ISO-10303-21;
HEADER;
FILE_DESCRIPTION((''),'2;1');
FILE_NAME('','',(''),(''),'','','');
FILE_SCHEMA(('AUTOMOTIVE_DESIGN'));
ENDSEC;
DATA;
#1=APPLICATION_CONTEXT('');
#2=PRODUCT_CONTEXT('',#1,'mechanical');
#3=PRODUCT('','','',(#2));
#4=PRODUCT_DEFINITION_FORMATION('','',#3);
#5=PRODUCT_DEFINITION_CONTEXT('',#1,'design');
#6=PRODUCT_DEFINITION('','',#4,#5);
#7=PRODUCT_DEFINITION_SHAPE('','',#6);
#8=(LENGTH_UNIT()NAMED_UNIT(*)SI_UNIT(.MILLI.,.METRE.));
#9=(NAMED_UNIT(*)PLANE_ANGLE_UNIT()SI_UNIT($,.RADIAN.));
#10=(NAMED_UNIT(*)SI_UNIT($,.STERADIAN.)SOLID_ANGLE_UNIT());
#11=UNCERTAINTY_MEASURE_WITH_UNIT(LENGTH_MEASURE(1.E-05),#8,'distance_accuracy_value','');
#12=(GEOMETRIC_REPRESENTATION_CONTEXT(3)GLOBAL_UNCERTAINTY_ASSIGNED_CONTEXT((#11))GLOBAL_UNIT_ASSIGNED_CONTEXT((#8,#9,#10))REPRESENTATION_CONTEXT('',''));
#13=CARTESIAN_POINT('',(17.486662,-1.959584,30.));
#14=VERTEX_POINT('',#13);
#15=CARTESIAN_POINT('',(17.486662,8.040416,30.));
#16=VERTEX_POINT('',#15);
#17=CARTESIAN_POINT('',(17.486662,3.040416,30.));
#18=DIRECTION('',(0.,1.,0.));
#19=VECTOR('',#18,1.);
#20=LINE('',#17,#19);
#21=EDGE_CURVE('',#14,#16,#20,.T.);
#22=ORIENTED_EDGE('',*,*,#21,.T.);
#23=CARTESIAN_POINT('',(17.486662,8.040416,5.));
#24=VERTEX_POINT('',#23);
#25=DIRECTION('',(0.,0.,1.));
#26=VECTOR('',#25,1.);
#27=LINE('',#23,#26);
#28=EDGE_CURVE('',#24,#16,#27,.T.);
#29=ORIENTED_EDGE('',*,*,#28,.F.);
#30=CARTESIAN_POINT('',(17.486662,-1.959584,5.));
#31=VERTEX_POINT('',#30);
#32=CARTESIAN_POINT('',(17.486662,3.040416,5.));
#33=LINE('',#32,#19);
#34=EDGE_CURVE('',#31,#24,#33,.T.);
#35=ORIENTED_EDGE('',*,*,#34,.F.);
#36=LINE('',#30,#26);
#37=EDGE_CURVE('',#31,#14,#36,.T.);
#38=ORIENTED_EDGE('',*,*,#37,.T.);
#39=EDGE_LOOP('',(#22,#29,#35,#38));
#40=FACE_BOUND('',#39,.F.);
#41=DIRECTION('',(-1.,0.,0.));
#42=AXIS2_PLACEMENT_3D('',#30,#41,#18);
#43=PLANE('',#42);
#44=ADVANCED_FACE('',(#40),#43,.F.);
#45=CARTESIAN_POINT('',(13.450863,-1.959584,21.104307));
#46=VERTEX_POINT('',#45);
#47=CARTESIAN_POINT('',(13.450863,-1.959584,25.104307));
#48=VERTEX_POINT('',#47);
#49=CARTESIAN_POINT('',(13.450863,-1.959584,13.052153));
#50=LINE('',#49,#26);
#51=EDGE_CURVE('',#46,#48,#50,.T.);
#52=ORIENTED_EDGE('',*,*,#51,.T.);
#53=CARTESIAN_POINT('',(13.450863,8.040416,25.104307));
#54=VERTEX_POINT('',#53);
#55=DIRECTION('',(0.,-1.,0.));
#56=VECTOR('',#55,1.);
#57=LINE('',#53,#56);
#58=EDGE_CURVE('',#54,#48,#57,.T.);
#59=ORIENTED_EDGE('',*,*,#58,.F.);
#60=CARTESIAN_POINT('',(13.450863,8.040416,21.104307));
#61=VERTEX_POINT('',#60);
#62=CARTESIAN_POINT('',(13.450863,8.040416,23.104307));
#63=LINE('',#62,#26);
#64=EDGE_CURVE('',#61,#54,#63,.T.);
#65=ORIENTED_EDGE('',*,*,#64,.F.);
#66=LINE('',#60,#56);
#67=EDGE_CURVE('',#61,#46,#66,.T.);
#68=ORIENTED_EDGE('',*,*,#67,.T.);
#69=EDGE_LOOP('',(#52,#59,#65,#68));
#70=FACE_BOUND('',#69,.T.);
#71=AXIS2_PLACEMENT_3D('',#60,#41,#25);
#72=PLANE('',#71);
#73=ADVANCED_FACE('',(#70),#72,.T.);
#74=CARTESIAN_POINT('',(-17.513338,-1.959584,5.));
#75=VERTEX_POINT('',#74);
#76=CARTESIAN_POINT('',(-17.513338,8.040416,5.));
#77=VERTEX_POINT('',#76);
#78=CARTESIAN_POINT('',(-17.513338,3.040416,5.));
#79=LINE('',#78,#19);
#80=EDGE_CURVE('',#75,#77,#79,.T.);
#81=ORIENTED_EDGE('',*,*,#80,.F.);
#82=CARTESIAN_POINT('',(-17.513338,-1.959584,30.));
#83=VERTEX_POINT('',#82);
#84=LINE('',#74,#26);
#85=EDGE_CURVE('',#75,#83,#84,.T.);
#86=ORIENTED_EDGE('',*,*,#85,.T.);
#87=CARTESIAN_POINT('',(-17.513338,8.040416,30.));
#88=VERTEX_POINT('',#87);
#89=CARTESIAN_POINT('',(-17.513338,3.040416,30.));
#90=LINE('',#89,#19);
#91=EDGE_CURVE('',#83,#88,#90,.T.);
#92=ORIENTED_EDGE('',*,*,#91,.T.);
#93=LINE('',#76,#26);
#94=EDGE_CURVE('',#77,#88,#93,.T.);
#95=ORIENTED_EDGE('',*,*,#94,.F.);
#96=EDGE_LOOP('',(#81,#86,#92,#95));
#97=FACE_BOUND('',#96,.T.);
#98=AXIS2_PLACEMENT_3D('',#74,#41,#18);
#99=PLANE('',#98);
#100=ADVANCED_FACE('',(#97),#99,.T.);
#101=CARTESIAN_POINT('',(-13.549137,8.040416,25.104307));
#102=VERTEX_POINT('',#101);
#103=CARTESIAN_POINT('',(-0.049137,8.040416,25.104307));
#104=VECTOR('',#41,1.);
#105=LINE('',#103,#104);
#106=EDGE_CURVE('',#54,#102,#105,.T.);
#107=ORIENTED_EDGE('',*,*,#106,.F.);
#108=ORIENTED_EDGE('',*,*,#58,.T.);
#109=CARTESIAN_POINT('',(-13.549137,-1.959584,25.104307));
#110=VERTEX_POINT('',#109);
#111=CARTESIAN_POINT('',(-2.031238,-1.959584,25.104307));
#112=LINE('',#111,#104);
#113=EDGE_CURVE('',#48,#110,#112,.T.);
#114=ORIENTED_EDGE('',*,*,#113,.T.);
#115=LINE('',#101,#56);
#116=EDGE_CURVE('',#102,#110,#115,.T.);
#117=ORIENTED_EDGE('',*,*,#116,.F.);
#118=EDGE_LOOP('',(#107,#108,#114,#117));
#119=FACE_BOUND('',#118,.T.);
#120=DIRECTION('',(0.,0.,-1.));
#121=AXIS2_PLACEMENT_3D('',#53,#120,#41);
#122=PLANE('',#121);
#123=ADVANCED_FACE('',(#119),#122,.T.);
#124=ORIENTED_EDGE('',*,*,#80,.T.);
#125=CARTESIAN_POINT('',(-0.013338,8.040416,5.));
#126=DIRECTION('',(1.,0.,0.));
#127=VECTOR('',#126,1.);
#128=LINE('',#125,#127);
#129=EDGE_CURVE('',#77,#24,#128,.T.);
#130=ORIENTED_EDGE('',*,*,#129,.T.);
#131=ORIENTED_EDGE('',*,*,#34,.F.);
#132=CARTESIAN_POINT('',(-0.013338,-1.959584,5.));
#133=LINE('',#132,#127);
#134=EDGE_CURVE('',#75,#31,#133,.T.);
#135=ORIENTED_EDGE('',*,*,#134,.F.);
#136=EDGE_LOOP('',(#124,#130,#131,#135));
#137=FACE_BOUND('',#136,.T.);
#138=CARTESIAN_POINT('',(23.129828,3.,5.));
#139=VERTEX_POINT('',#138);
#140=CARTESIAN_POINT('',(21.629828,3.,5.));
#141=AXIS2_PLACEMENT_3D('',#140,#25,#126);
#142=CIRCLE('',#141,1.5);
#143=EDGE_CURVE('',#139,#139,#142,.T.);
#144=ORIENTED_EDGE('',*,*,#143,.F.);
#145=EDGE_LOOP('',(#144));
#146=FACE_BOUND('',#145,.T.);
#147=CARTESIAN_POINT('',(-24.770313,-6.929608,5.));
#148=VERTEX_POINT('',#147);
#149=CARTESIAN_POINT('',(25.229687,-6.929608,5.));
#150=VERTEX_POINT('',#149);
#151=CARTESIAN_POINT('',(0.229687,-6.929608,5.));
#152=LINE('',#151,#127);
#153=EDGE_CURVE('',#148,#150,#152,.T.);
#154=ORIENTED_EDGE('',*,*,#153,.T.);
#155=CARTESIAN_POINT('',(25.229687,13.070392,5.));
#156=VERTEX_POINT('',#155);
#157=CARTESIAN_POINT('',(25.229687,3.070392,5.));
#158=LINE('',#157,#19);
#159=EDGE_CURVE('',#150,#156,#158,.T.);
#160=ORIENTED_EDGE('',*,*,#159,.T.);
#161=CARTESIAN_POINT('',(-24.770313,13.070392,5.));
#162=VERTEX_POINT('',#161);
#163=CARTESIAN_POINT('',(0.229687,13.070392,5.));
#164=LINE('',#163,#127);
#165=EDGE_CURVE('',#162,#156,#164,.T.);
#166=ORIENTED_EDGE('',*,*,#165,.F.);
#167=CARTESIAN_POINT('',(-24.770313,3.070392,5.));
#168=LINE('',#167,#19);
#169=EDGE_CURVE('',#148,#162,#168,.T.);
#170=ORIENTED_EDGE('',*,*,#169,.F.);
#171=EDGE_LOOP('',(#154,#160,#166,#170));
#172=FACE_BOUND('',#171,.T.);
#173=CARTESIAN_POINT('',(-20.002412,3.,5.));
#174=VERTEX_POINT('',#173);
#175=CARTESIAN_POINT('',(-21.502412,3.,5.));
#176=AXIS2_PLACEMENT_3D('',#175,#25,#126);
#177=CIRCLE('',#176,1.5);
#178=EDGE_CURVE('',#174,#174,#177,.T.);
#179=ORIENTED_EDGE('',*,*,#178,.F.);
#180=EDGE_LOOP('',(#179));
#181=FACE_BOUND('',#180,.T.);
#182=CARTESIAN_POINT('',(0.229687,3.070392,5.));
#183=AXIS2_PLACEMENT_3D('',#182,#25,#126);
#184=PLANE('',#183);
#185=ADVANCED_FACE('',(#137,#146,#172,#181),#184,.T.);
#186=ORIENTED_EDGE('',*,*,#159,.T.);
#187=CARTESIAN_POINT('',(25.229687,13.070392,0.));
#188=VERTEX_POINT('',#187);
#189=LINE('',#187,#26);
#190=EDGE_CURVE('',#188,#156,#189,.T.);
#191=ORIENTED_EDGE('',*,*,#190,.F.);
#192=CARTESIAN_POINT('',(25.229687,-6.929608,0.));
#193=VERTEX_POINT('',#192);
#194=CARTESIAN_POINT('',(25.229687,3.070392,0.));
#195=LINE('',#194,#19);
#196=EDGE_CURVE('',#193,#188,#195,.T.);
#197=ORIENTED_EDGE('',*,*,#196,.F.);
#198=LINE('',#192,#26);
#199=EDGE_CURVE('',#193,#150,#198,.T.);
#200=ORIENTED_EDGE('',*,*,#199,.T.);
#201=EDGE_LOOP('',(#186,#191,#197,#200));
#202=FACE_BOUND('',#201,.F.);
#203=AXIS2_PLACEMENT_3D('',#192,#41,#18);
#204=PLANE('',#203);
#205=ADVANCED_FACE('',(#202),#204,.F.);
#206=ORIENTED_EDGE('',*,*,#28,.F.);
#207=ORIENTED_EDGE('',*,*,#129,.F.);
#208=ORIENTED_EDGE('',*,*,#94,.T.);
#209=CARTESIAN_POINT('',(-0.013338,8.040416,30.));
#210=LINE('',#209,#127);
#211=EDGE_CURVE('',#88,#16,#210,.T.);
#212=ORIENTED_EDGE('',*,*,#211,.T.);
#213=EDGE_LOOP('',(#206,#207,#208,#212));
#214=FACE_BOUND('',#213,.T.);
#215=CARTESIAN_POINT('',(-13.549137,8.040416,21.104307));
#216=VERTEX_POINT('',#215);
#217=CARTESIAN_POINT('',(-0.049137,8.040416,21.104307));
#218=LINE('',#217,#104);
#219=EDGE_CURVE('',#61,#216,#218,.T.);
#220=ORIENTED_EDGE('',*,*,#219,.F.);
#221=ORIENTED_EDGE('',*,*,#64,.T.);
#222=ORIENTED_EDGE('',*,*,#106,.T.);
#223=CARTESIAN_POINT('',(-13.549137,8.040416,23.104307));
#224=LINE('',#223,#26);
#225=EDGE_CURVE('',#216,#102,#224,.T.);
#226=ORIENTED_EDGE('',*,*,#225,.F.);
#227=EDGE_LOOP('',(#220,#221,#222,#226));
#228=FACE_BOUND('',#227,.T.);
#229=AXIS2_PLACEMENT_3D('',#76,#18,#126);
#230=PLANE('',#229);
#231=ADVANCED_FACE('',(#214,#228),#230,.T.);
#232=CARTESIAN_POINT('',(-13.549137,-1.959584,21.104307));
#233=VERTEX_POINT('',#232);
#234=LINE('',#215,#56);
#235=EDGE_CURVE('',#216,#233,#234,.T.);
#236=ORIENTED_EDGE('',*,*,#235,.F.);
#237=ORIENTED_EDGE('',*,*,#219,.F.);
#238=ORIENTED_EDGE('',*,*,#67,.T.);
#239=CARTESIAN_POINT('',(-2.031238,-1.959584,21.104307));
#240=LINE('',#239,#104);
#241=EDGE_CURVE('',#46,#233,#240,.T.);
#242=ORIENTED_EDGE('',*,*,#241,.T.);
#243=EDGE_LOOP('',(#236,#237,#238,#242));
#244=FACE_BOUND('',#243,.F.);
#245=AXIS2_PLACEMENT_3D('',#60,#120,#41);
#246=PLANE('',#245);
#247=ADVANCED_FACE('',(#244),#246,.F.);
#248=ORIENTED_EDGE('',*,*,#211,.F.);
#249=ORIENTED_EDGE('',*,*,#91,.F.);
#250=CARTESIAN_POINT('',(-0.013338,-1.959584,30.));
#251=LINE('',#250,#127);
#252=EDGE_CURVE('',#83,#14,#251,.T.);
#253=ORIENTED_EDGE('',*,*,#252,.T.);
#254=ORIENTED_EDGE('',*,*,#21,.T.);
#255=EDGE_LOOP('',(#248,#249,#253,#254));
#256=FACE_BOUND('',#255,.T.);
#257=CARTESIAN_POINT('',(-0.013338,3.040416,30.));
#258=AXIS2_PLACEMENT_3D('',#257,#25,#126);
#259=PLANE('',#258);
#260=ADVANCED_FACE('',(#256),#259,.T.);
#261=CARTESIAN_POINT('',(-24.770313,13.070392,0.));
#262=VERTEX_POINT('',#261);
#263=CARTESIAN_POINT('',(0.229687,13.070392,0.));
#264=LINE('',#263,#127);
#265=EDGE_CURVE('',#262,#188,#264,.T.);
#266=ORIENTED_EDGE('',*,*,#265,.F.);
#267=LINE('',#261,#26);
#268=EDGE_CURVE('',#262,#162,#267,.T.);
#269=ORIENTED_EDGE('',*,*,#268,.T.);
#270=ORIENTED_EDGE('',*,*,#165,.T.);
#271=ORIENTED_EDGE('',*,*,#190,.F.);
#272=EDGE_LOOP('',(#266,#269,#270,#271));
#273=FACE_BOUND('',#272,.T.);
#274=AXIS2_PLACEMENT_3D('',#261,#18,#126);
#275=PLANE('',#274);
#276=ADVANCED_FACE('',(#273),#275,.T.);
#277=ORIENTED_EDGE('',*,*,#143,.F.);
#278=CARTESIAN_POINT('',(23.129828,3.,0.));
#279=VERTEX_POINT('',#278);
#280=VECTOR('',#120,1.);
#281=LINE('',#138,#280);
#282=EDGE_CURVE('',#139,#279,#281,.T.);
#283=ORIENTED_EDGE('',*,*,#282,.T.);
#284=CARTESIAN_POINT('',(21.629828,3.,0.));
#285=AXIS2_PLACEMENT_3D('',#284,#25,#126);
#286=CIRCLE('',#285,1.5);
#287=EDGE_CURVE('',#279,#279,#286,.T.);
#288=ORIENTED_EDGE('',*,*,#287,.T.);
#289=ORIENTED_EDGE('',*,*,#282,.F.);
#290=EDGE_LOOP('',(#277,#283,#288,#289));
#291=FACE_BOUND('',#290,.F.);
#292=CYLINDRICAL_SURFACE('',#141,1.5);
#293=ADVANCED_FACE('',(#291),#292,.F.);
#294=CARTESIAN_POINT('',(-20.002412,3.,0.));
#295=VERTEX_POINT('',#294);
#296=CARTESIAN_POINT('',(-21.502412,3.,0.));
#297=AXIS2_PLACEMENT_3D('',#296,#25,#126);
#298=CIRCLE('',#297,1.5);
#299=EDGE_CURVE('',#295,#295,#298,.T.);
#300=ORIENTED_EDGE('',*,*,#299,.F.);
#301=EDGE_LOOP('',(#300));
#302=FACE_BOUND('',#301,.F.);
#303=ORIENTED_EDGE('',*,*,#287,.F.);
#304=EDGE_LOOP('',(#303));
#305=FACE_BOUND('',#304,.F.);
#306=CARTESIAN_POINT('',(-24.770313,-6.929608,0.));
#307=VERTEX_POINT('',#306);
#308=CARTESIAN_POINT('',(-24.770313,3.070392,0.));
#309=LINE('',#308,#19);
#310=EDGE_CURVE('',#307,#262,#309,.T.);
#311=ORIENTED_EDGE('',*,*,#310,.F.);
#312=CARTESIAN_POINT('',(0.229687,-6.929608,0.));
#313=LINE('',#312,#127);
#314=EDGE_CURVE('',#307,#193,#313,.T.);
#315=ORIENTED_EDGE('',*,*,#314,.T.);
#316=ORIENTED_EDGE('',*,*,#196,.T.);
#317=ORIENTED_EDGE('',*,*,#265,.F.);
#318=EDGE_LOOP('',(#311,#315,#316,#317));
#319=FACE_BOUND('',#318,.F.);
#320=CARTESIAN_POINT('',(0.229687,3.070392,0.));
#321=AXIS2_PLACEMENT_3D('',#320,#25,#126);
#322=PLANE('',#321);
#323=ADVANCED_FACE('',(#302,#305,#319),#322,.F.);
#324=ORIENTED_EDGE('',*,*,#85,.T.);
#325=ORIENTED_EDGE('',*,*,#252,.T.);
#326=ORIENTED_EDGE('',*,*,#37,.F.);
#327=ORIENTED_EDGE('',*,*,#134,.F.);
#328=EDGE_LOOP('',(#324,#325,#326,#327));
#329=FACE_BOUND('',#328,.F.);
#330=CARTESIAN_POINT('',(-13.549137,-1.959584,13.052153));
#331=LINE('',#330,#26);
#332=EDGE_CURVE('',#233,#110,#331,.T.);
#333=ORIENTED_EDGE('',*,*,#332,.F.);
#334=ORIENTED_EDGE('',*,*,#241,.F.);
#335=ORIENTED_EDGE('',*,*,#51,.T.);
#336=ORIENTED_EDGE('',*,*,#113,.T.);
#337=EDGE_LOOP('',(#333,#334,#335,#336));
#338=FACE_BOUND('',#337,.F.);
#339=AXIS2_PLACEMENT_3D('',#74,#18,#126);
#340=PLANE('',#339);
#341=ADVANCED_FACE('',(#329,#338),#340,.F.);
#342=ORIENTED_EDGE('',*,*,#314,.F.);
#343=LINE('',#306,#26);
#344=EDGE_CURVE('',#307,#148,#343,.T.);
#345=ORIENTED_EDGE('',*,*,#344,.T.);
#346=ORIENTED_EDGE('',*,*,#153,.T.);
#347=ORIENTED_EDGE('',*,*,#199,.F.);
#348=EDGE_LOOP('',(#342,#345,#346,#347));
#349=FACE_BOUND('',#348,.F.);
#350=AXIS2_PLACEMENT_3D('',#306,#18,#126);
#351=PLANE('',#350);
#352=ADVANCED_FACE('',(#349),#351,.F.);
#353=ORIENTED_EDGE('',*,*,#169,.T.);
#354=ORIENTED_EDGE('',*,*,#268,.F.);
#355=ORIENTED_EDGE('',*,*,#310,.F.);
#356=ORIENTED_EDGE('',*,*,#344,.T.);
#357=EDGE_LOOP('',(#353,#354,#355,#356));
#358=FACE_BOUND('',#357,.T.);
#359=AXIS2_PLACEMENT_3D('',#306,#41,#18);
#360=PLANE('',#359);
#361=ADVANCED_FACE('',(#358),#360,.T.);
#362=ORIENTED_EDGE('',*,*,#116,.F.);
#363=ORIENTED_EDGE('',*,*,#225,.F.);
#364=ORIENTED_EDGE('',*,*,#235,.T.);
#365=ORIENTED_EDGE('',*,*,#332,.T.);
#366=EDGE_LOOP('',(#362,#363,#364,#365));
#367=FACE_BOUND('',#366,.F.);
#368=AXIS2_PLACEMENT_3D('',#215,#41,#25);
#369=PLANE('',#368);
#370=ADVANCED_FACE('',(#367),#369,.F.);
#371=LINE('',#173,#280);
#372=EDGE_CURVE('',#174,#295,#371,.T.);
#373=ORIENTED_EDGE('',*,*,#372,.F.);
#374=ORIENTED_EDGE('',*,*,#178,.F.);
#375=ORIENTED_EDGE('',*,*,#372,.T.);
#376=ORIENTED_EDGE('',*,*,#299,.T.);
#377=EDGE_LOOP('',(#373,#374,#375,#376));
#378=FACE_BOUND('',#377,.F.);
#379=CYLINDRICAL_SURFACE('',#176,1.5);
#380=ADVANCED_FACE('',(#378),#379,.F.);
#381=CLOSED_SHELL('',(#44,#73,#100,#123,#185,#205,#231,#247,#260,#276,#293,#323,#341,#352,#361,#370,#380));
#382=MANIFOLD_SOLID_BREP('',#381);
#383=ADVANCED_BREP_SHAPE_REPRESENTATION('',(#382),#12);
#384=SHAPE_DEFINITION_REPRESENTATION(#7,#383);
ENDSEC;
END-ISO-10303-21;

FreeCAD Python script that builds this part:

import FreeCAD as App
import Part
import Sketcher

doc = App.newDocument("Part")
body = doc.addObject("PartDesign::Body", "Body")

# Sketch on XY plane
sketch1 = body.newObject("Sketcher::SketchObject", "Sketch")
sketch1.AttachmentSupport = (doc.getObject("XY_Plane"), [""])
sketch1.MapMode = "FlatFace"
sketch1.addGeometry(Part.LineSegment(App.Vector(-25, 10, 0), App.Vector(-25, -10, 0)), False)
sketch1.addGeometry(Part.LineSegment(App.Vector(-25, -10, 0), App.Vector(25, -10, 0)), False)
sketch1.addGeometry(Part.LineSegment(App.Vector(25, -10, 0), App.Vector(25, 10, 0)), False)
sketch1.addGeometry(Part.LineSegment(App.Vector(25, 10, 0), App.Vector(-25, 10, 0)), False)
sketch1.addConstraint(Sketcher.Constraint("Coincident", 0, 2, 1, 1))
sketch1.addConstraint(Sketcher.Constraint("Coincident", 1, 2, 2, 1))
sketch1.addConstraint(Sketcher.Constraint("Coincident", 2, 2, 3, 1))
sketch1.addConstraint(Sketcher.Constraint("Coincident", 3, 2, 0, 1))
sketch1.addConstraint(Sketcher.Constraint("Vertical", 0))
sketch1.addConstraint(Sketcher.Constraint("Horizontal", 1))
sketch1.addConstraint(Sketcher.Constraint("Vertical", 2))
sketch1.addConstraint(Sketcher.Constraint("Horizontal", 3))
sketch1.addConstraint(Sketcher.Constraint("DistanceX", 1, 1, 1, 2, 50.0))
sketch1.addConstraint(Sketcher.Constraint("DistanceY", 0, 2, 0, 1, 20.0))
sketch1.addConstraint(Sketcher.Constraint("DistanceX", 0, 2, -1, 1, 24.770313))
sketch1.addConstraint(Sketcher.Constraint("DistanceY", 0, 2, -1, 1, 9.929608))
pad1 = body.newObject("PartDesign::Pad", "Pad")
pad1.Profile = sketch1
pad1.Length = 5

# Sketch on XY plane
sketch2 = body.newObject("Sketcher::SketchObject", "Sketch001")
sketch2.AttachmentSupport = (doc.getObject("XY_Plane"), [""])
sketch2.MapMode = "FlatFace"
sketch2.AttachmentOffset = App.Placement(App.Vector(0, 0, 5), App.Rotation())
sketch2.addGeometry(Part.Circle(App.Vector(-21.5, 0, 0), App.Vector(0, 0, 1), 1.5), False)
sketch2.addGeometry(Part.Circle(App.Vector(21.6, 0, 0), App.Vector(0, 0, 1), 1.5), False)
sketch2.addConstraint(Sketcher.Constraint("Equal", 0, 1))
sketch2.addConstraint(Sketcher.Constraint("PointOnObject", 0, 3, -1))
sketch2.addConstraint(Sketcher.Constraint("PointOnObject", 1, 3, -1))
sketch2.addConstraint(Sketcher.Constraint("Diameter", 0, 3.0))
sketch2.addConstraint(Sketcher.Constraint("DistanceX", 0, 3, -1, 1, 21.502412))
sketch2.addConstraint(Sketcher.Constraint("DistanceX", -1, 1, 1, 3, 21.629828))
pocket1 = body.newObject("PartDesign::Pocket", "Pocket")
pocket1.Profile = sketch2
pocket1.Length = 25

# Sketch on XY plane
sketch3 = body.newObject("Sketcher::SketchObject", "Sketch002")
sketch3.AttachmentSupport = (doc.getObject("XY_Plane"), [""])
sketch3.MapMode = "FlatFace"
sketch3.AttachmentOffset = App.Placement(App.Vector(0, 0, 5), App.Rotation())
sketch3.addGeometry(Part.LineSegment(App.Vector(-18, 5, 0), App.Vector(-18, -5, 0)), False)
sketch3.addGeometry(Part.LineSegment(App.Vector(-18, -5, 0), App.Vector(17, -5, 0)), False)
sketch3.addGeometry(Part.LineSegment(App.Vector(17, -5, 0), App.Vector(17, 5, 0)), False)
sketch3.addGeometry(Part.LineSegment(App.Vector(17, 5, 0), App.Vector(-18, 5, 0)), False)
sketch3.addConstraint(Sketcher.Constraint("Coincident", 0, 2, 1, 1))
sketch3.addConstraint(Sketcher.Constraint("Coincident", 1, 2, 2, 1))
sketch3.addConstraint(Sketcher.Constraint("Coincident", 2, 2, 3, 1))
sketch3.addConstraint(Sketcher.Constraint("Coincident", 3, 2, 0, 1))
sketch3.addConstraint(Sketcher.Constraint("Vertical", 0))
sketch3.addConstraint(Sketcher.Constraint("Horizontal", 1))
sketch3.addConstraint(Sketcher.Constraint("Vertical", 2))
sketch3.addConstraint(Sketcher.Constraint("Horizontal", 3))
sketch3.addConstraint(Sketcher.Constraint("DistanceX", 1, 1, 1, 2, 35.0))
sketch3.addConstraint(Sketcher.Constraint("DistanceY", 0, 2, 0, 1, 10.0))
sketch3.addConstraint(Sketcher.Constraint("DistanceX", 0, 2, -1, 1, 17.513338))
sketch3.addConstraint(Sketcher.Constraint("DistanceY", 0, 2, -1, 1, 4.959584))
pad2 = body.newObject("PartDesign::Pad", "Pad001")
pad2.Profile = sketch3
pad2.Length = 25

# Sketch on XZ plane
sketch4 = body.newObject("Sketcher::SketchObject", "Sketch003")
sketch4.AttachmentSupport = (doc.getObject("XZ_Plane"), [""])
sketch4.MapMode = "FlatFace"
sketch4.AttachmentOffset = App.Placement(App.Vector(0, 0, -5.040416), App.Rotation())
sketch4.addGeometry(Part.LineSegment(App.Vector(13.5, 25.1, 0), App.Vector(13.5, 21.1, 0)), False)
sketch4.addGeometry(Part.LineSegment(App.Vector(13.5, 21.1, 0), App.Vector(-13.5, 21.1, 0)), False)
sketch4.addGeometry(Part.LineSegment(App.Vector(-13.5, 21.1, 0), App.Vector(-13.5, 25.1, 0)), False)
sketch4.addGeometry(Part.LineSegment(App.Vector(-13.5, 25.1, 0), App.Vector(13.5, 25.1, 0)), False)
sketch4.addConstraint(Sketcher.Constraint("Coincident", 0, 2, 1, 1))
sketch4.addConstraint(Sketcher.Constraint("Coincident", 1, 2, 2, 1))
sketch4.addConstraint(Sketcher.Constraint("Coincident", 2, 2, 3, 1))
sketch4.addConstraint(Sketcher.Constraint("Coincident", 3, 2, 0, 1))
sketch4.addConstraint(Sketcher.Constraint("Vertical", 0))
sketch4.addConstraint(Sketcher.Constraint("Horizontal", 1))
sketch4.addConstraint(Sketcher.Constraint("Vertical", 2))
sketch4.addConstraint(Sketcher.Constraint("Horizontal", 3))
sketch4.addConstraint(Sketcher.Constraint("DistanceX", 1, 2, 1, 1, 27.0))
sketch4.addConstraint(Sketcher.Constraint("DistanceY", 0, 2, 0, 1, 4.0))
sketch4.addConstraint(Sketcher.Constraint("DistanceX", -1, 1, 0, 2, 13.450863))
sketch4.addConstraint(Sketcher.Constraint("DistanceY", -1, 1, 0, 2, 21.104307))
pocket2 = body.newObject("PartDesign::Pocket", "Pocket001")
pocket2.Profile = sketch4
pocket2.Length = 11
pocket2.Reversed = True
body2 = doc.addObject("PartDesign::Body", "Body001")
doc.recompute()

body.Placement = App.Placement(App.Vector(0, 3, 0), App.Rotation(App.Vector(0, 0, 1), 0))
boolean = body2.newObject("PartDesign::Boolean", "Boolean")
boolean.Type = "Fuse"
boolean.addObjects([body])

doc.recompute()
